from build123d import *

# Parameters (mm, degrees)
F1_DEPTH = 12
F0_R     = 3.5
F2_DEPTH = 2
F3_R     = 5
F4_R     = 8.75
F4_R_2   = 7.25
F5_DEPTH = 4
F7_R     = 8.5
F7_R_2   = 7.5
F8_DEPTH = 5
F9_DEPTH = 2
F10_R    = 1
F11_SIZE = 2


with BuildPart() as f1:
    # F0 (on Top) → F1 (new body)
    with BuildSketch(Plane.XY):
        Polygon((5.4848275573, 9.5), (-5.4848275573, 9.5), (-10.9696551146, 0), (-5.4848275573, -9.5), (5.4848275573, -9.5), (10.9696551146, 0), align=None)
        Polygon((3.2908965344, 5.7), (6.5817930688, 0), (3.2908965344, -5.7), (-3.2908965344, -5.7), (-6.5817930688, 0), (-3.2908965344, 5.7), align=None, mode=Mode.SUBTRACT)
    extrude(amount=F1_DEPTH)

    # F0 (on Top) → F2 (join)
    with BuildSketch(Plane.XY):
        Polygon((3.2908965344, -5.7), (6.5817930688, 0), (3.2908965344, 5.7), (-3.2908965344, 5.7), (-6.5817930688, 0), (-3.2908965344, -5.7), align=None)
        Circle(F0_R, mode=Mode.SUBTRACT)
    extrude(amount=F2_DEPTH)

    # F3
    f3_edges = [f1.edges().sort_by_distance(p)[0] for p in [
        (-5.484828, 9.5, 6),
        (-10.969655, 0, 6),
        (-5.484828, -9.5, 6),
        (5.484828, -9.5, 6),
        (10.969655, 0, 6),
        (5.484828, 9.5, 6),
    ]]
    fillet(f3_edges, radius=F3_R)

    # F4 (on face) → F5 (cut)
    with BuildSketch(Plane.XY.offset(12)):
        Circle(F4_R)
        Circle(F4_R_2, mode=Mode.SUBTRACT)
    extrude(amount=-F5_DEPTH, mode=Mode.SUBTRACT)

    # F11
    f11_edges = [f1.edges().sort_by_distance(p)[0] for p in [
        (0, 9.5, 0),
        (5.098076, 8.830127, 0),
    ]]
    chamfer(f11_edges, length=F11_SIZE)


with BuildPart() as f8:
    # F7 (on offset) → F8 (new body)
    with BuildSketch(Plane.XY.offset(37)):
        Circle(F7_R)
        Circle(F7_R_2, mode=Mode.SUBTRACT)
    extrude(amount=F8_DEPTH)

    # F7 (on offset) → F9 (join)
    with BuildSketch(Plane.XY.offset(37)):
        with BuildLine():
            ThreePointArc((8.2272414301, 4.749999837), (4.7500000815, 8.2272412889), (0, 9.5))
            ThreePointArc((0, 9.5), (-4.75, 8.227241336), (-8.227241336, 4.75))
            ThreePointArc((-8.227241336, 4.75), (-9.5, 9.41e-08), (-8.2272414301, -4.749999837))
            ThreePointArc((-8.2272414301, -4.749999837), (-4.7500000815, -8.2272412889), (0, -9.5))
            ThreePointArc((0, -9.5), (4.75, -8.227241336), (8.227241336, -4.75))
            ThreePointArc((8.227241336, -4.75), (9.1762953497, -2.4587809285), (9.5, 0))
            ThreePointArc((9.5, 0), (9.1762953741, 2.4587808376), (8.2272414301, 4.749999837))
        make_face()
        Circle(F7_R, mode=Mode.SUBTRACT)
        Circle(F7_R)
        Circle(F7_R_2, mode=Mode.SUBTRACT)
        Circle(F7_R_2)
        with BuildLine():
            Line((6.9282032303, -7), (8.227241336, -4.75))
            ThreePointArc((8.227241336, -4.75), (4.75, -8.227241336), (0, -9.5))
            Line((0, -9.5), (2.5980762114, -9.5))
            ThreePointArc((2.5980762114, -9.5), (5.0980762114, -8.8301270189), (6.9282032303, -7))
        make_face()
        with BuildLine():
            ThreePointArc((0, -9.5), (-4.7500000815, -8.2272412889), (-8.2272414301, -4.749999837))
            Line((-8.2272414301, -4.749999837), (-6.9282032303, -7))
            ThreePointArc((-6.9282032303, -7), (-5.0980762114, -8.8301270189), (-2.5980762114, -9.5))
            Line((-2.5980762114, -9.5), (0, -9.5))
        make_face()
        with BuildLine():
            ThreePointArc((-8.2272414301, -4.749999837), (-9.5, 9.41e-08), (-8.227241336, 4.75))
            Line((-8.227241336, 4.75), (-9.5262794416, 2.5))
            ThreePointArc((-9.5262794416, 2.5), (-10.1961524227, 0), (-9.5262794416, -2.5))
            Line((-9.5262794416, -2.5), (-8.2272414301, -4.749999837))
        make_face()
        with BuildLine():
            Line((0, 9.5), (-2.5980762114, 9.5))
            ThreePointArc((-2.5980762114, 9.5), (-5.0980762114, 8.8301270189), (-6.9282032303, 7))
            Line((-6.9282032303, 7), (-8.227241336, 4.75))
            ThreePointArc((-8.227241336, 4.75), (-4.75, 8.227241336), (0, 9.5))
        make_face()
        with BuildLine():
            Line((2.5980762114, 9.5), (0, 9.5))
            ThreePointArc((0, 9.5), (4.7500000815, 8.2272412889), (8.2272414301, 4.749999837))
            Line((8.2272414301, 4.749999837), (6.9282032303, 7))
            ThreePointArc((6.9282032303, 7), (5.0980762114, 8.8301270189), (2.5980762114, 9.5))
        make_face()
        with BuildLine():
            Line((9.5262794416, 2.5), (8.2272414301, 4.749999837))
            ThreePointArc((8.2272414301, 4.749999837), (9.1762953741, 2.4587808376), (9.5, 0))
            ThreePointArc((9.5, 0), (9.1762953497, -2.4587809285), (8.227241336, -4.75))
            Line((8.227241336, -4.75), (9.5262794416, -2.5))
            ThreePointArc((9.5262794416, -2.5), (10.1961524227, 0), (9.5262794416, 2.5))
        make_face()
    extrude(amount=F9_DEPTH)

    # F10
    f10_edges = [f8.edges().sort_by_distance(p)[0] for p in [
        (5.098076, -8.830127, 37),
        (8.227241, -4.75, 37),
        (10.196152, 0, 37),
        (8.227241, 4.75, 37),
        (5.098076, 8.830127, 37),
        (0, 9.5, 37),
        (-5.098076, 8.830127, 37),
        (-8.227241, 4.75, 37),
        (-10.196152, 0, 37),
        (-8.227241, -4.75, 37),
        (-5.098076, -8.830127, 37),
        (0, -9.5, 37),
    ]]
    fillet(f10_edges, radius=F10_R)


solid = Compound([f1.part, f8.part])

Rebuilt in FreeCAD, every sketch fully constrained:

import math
import FreeCAD as App
import Part
import Sketcher
Q = App.Units.Quantity


def edges_at(feature, points):
    """Names of the edges that pass closest to the given points."""
    edges = feature.Shape.Edges
    near = lambda p: min(range(len(edges)), key=lambda i: edges[i].distToShape(Part.Vertex(*p))[0])
    return sorted({f"Edge{near(p) + 1}" for p in points})


def add_polygon(sketch, points):
    """Adds a closed chain of lines whose ends are joined by coincident constraints."""
    first, n = sketch.GeometryCount, len(points)
    for a, b in zip(points, points[1:] + points[:1]):
        sketch.addGeometry(Part.LineSegment(App.Vector(*a, 0), App.Vector(*b, 0)), False)
    for i in range(n):
        sketch.addConstraint(Sketcher.Constraint("Coincident", first + i, 2, first + (i + 1) % n, 1))

doc = App.newDocument("Part")
body = doc.addObject("PartDesign::Body", "Body")

sketch1 = doc.addObject("Sketcher::SketchObject", "Sketch")
body.addObject(sketch1)
sketch1.AttachmentSupport = (doc.XY_Plane, [""])
sketch1.MapMode = "FlatFace"
add_polygon(sketch1, [(5, 10), (-5, 10), (-11, 0), (-5, -10), (5, -10), (11, 0)])
add_polygon(sketch1, [(-3, 6), (3, 6), (7, 0), (3, -6), (-3, -6), (-7, 0)])
sketch1.addConstraint([
    Sketcher.Constraint("Horizontal", 0),
    Sketcher.Constraint("Horizontal", 3),
    Sketcher.Constraint("Horizontal", 6),
    Sketcher.Constraint("Horizontal", 9),
    Sketcher.Constraint("Symmetric", 0, 2, 3, 2, -1, 1),
    Sketcher.Constraint("Symmetric", 1, 2, 4, 2, -1, 1),
    Sketcher.Constraint("Symmetric", 6, 2, 9, 2, -1, 1),
    Sketcher.Constraint("Symmetric", 7, 2, 10, 2, -1, 1),
    Sketcher.Constraint("PointOnObject", 1, 2, -1),
    Sketcher.Constraint("PointOnObject", 7, 2, -1),
    Sketcher.Constraint("Parallel", 2, 5),
    Sketcher.Constraint("Parallel", 5, 7),
    Sketcher.Constraint("Parallel", 4, 8),
    Sketcher.Constraint("Parallel", 8, 11),
    Sketcher.Constraint("Vertical", 0, 2, 2, 2),
    Sketcher.Constraint("Angle", 1, Q("-120 deg")),
    Sketcher.Constraint("DistanceY", 2, 2, 0, 2, Q("19 mm")),
    Sketcher.Constraint("DistanceY", -1, 1, 6, 2, Q("5.7 mm")),
    Sketcher.Constraint("DistanceX", 0, 2, 0, 1, Q("10.969655 mm")),
    Sketcher.Constraint("DistanceX", 6, 1, 6, 2, Q("6.581793 mm")),
])
pad1 = doc.addObject("PartDesign::Pad", "Pad")
body.addObject(pad1)
pad1.Profile = sketch1
pad1.Length = 12

sketch2 = doc.addObject("Sketcher::SketchObject", "Sketch001")
body.addObject(sketch2)
sketch2.AttachmentSupport = (doc.XY_Plane, [""])
sketch2.MapMode = "FlatFace"
add_polygon(sketch2, [(3.3, -5.7), (6.6, 0), (3.3, 5.7), (-3.3, 5.7), (-6.6, 0), (-3.3, -5.7)])
sketch2.addGeometry(Part.Circle(App.Vector(0, 0, 0), App.Vector(0, 0, 1), 3.5), False)
sketch2.addConstraint([
    Sketcher.Constraint("Horizontal", 2),
    Sketcher.Constraint("Horizontal", 5),
    Sketcher.Constraint("Coincident", 6, 3, -1, 1),
    Sketcher.Constraint("Symmetric", 0, 2, 3, 2, -1, 1),
    Sketcher.Constraint("Symmetric", 1, 2, 4, 2, -1, 1),
    Sketcher.Constraint("PointOnObject", 0, 2, -1),
    Sketcher.Constraint("Parallel", 0, 3),
    Sketcher.Constraint("Vertical", 2, 2, 4, 2),
    Sketcher.Constraint("Diameter", 6, Q("7 mm")),
    Sketcher.Constraint("Angle", 0, Q("60 deg")),
    Sketcher.Constraint("DistanceY", -1, 1, 1, 2, Q("5.7 mm")),
    Sketcher.Constraint("DistanceX", 2, 2, 2, 1, Q("6.581793 mm")),
])
pad2 = doc.addObject("PartDesign::Pad", "Pad001")
body.addObject(pad2)
pad2.Profile = sketch2
pad2.Length = 2
doc.recompute()

fillet = doc.addObject("PartDesign::Fillet", "Fillet")
body.addObject(fillet)
fillet.Base = (pad2, edges_at(pad2, [
    (-5.485, 9.5, 6),
    (-10.97, 0, 6),
    (-5.485, -9.5, 6),
    (5.485, -9.5, 6),
    (10.97, 0, 6),
    (5.485, 9.5, 6),
]))
fillet.Radius = 5

sketch3 = doc.addObject("Sketcher::SketchObject", "Sketch002")
body.addObject(sketch3)
sketch3.AttachmentSupport = (doc.XY_Plane, [""])
sketch3.MapMode = "FlatFace"
sketch3.AttachmentOffset = App.Placement(App.Vector(0, 0, 12), App.Rotation())
sketch3.addGeometry([
    Part.Circle(App.Vector(0, 0, 0), App.Vector(0, 0, 1), 9),
    Part.Circle(App.Vector(0, 0, 0), App.Vector(0, 0, 1), 7),
], False)
sketch3.addConstraint([
    Sketcher.Constraint("Coincident", 0, 3, -1, 1),
    Sketcher.Constraint("Coincident", 1, 3, -1, 1),
    Sketcher.Constraint("Diameter", 0, Q("17.5 mm")),
    Sketcher.Constraint("Diameter", 1, Q("14.5 mm")),
])
pocket1 = doc.addObject("PartDesign::Pocket", "Pocket")
body.addObject(pocket1)
pocket1.Profile = sketch3
pocket1.Length = 4
doc.recompute()

chamfer = doc.addObject("PartDesign::Chamfer", "Chamfer")
body.addObject(chamfer)
chamfer.Base = (pocket1, edges_at(pocket1, [(0, 9.5, 0), (5.098, 8.83, 0)]))
chamfer.Size = 2
body2 = doc.addObject("PartDesign::Body", "Body001")

sketch4 = doc.addObject("Sketcher::SketchObject", "Sketch003")
body2.addObject(sketch4)
sketch4.AttachmentSupport = (doc.getObject("XY_Plane001"), [""])
sketch4.MapMode = "FlatFace"
sketch4.AttachmentOffset = App.Placement(App.Vector(0, 0, 37), App.Rotation())
sketch4.addGeometry([
    Part.Circle(App.Vector(0, 0, 0), App.Vector(0, 0, 1), 8),
    Part.Circle(App.Vector(0, 0, 0), App.Vector(0, 0, 1), 8),
], False)
sketch4.addConstraint([
    Sketcher.Constraint("Coincident", 0, 3, -1, 1),
    Sketcher.Constraint("Coincident", 1, 3, -1, 1),
    Sketcher.Constraint("Diameter", 0, Q("17 mm")),
    Sketcher.Constraint("Diameter", 1, Q("15 mm")),
])
pad3 = doc.addObject("PartDesign::Pad", "Pad002")
body2.addObject(pad3)
pad3.Profile = sketch4
pad3.Length = 5

sketch5 = doc.addObject("Sketcher::SketchObject", "Sketch004")
body2.addObject(sketch5)
sketch5.AttachmentSupport = (doc.getObject("XY_Plane001"), [""])
sketch5.MapMode = "FlatFace"
sketch5.AttachmentOffset = App.Placement(App.Vector(0, 0, 37), App.Rotation())
sketch5.addGeometry([
    Part.ArcOfCircle(Part.Circle(App.Vector(-2.6, 4.5, 0), App.Vector(0, 0, 1), 5), math.radians(90), math.radians(150)),
    Part.LineSegment(App.Vector(-6.9, 7, 0), App.Vector(-8.2, 4.8, 0)),
    Part.LineSegment(App.Vector(-8.2, 4.8, 0), App.Vector(-9.5, 2.5, 0)),
    Part.ArcOfCircle(Part.Circle(App.Vector(-5.2, 0, 0), App.Vector(0, 0, 1), 5), math.radians(150), math.radians(210)),
    Part.LineSegment(App.Vector(-9.5, -2.5, 0), App.Vector(-8.2, -4.7, 0)),
    Part.LineSegment(App.Vector(-8.2, -4.7, 0), App.Vector(-6.9, -7, 0)),
    Part.ArcOfCircle(Part.Circle(App.Vector(-2.6, -4.5, 0), App.Vector(0, 0, 1), 5), math.radians(-150), math.radians(-90)),
    Part.LineSegment(App.Vector(-2.6, -9.5, 0), App.Vector(2.6, -9.5, 0)),
    Part.ArcOfCircle(Part.Circle(App.Vector(2.6, -4.5, 0), App.Vector(0, 0, 1), 5), math.radians(-90), math.radians(-30)),
    Part.LineSegment(App.Vector(6.9, -7, 0), App.Vector(8.2, -4.8, 0)),
    Part.LineSegment(App.Vector(8.2, -4.8, 0), App.Vector(9.5, -2.5, 0)),
    Part.ArcOfCircle(Part.Circle(App.Vector(5.2, 0, 0), App.Vector(0, 0, 1), 5), math.radians(-30), math.radians(30)),
    Part.LineSegment(App.Vector(9.5, 2.5, 0), App.Vector(8.2, 4.7, 0)),
    Part.LineSegment(App.Vector(8.2, 4.7, 0), App.Vector(6.9, 7, 0)),
    Part.ArcOfCircle(Part.Circle(App.Vector(2.6, 4.5, 0), App.Vector(0, 0, 1), 5), math.radians(30), math.radians(90)),
    Part.LineSegment(App.Vector(2.6, 9.5, 0), App.Vector(-2.6, 9.5, 0)),
], False)
sketch5.addConstraint([
    Sketcher.Constraint("Tangent", 0, 2, 1, 1),
    Sketcher.Constraint("Coincident", 1, 2, 2, 1),
    Sketcher.Constraint("Tangent", 2, 2, 3, 1),
    Sketcher.Constraint("Tangent", 3, 2, 4, 1),
    Sketcher.Constraint("Coincident", 4, 2, 5, 1),
    Sketcher.Constraint("Tangent", 5, 2, 6, 1),
    Sketcher.Constraint("Tangent", 6, 2, 7, 1),
    Sketcher.Constraint("Tangent", 7, 2, 8, 1),
    Sketcher.Constraint("Tangent", 8, 2, 9, 1),
    Sketcher.Constraint("Coincident", 9, 2, 10, 1),
    Sketcher.Constraint("Tangent", 10, 2, 11, 1),
    Sketcher.Constraint("Tangent", 11, 2, 12, 1),
    Sketcher.Constraint("Coincident", 12, 2, 13, 1),
    Sketcher.Constraint("Tangent", 13, 2, 14, 1),
    Sketcher.Constraint("Tangent", 14, 2, 15, 1),
    Sketcher.Constraint("Tangent", 15, 2, 0, 1),
    Sketcher.Constraint("Horizontal", 7),
    Sketcher.Constraint("Horizontal", 15),
    Sketcher.Constraint("Equal", 0, 3),
    Sketcher.Constraint("Equal", 3, 6),
    Sketcher.Constraint("Equal", 6, 8),
    Sketcher.Constraint("Equal", 8, 11),
    Sketcher.Constraint("Equal", 11, 14),
    Sketcher.Constraint("Symmetric", 0, 3, 8, 3, -1, 1),
    Sketcher.Constraint("Symmetric", 3, 3, 11, 3, -1, 1),
    Sketcher.Constraint("Symmetric", 1, 2, 9, 2, -1, 1),
    Sketcher.Constraint("Symmetric", 4, 2, 12, 2, -1, 1),
    Sketcher.Constraint("Symmetric", 5, 2, 8, 2, -2),
    Sketcher.Constraint("PointOnObject", 3, 3, -1),
    Sketcher.Constraint("Parallel", 1, 2),
    Sketcher.Constraint("Parallel", 12, 13),
    Sketcher.Constraint("Horizontal", 4, 2, 9, 2),
    Sketcher.Constraint("Equal", 1, 2),
    Sketcher.Constraint("Radius", 0, Q("5 mm")),
    Sketcher.Constraint("Angle", 1, Q("-120 deg")),
    Sketcher.Constraint("DistanceY", -1, 1, 0, 2, Q("7 mm")),
    Sketcher.Constraint("DistanceX", 7, 1, 7, 2, Q("5.196152 mm")),
])
pad4 = doc.addObject("PartDesign::Pad", "Pad003")
body2.addObject(pad4)
pad4.Profile = sketch5
pad4.Length = 2
doc.recompute()

fillet2 = doc.addObject("PartDesign::Fillet", "Fillet001")
body2.addObject(fillet2)
fillet2.Base = (pad4, edges_at(pad4, [
    (5.098, -8.83, 37),
    (7.578, -5.875, 37),
    (10.196, 0, 37),
    (7.578, 5.875, 37),
    (5.098, 8.83, 37),
    (0, 9.5, 37),
    (-5.098, 8.83, 37),
    (-7.578, 5.875, 37),
    (-10.196, 0, 37),
    (-7.578, -5.875, 37),
    (-5.098, -8.83, 37),
    (0, -9.5, 37),
]))
fillet2.Radius = 1

doc.recompute()
